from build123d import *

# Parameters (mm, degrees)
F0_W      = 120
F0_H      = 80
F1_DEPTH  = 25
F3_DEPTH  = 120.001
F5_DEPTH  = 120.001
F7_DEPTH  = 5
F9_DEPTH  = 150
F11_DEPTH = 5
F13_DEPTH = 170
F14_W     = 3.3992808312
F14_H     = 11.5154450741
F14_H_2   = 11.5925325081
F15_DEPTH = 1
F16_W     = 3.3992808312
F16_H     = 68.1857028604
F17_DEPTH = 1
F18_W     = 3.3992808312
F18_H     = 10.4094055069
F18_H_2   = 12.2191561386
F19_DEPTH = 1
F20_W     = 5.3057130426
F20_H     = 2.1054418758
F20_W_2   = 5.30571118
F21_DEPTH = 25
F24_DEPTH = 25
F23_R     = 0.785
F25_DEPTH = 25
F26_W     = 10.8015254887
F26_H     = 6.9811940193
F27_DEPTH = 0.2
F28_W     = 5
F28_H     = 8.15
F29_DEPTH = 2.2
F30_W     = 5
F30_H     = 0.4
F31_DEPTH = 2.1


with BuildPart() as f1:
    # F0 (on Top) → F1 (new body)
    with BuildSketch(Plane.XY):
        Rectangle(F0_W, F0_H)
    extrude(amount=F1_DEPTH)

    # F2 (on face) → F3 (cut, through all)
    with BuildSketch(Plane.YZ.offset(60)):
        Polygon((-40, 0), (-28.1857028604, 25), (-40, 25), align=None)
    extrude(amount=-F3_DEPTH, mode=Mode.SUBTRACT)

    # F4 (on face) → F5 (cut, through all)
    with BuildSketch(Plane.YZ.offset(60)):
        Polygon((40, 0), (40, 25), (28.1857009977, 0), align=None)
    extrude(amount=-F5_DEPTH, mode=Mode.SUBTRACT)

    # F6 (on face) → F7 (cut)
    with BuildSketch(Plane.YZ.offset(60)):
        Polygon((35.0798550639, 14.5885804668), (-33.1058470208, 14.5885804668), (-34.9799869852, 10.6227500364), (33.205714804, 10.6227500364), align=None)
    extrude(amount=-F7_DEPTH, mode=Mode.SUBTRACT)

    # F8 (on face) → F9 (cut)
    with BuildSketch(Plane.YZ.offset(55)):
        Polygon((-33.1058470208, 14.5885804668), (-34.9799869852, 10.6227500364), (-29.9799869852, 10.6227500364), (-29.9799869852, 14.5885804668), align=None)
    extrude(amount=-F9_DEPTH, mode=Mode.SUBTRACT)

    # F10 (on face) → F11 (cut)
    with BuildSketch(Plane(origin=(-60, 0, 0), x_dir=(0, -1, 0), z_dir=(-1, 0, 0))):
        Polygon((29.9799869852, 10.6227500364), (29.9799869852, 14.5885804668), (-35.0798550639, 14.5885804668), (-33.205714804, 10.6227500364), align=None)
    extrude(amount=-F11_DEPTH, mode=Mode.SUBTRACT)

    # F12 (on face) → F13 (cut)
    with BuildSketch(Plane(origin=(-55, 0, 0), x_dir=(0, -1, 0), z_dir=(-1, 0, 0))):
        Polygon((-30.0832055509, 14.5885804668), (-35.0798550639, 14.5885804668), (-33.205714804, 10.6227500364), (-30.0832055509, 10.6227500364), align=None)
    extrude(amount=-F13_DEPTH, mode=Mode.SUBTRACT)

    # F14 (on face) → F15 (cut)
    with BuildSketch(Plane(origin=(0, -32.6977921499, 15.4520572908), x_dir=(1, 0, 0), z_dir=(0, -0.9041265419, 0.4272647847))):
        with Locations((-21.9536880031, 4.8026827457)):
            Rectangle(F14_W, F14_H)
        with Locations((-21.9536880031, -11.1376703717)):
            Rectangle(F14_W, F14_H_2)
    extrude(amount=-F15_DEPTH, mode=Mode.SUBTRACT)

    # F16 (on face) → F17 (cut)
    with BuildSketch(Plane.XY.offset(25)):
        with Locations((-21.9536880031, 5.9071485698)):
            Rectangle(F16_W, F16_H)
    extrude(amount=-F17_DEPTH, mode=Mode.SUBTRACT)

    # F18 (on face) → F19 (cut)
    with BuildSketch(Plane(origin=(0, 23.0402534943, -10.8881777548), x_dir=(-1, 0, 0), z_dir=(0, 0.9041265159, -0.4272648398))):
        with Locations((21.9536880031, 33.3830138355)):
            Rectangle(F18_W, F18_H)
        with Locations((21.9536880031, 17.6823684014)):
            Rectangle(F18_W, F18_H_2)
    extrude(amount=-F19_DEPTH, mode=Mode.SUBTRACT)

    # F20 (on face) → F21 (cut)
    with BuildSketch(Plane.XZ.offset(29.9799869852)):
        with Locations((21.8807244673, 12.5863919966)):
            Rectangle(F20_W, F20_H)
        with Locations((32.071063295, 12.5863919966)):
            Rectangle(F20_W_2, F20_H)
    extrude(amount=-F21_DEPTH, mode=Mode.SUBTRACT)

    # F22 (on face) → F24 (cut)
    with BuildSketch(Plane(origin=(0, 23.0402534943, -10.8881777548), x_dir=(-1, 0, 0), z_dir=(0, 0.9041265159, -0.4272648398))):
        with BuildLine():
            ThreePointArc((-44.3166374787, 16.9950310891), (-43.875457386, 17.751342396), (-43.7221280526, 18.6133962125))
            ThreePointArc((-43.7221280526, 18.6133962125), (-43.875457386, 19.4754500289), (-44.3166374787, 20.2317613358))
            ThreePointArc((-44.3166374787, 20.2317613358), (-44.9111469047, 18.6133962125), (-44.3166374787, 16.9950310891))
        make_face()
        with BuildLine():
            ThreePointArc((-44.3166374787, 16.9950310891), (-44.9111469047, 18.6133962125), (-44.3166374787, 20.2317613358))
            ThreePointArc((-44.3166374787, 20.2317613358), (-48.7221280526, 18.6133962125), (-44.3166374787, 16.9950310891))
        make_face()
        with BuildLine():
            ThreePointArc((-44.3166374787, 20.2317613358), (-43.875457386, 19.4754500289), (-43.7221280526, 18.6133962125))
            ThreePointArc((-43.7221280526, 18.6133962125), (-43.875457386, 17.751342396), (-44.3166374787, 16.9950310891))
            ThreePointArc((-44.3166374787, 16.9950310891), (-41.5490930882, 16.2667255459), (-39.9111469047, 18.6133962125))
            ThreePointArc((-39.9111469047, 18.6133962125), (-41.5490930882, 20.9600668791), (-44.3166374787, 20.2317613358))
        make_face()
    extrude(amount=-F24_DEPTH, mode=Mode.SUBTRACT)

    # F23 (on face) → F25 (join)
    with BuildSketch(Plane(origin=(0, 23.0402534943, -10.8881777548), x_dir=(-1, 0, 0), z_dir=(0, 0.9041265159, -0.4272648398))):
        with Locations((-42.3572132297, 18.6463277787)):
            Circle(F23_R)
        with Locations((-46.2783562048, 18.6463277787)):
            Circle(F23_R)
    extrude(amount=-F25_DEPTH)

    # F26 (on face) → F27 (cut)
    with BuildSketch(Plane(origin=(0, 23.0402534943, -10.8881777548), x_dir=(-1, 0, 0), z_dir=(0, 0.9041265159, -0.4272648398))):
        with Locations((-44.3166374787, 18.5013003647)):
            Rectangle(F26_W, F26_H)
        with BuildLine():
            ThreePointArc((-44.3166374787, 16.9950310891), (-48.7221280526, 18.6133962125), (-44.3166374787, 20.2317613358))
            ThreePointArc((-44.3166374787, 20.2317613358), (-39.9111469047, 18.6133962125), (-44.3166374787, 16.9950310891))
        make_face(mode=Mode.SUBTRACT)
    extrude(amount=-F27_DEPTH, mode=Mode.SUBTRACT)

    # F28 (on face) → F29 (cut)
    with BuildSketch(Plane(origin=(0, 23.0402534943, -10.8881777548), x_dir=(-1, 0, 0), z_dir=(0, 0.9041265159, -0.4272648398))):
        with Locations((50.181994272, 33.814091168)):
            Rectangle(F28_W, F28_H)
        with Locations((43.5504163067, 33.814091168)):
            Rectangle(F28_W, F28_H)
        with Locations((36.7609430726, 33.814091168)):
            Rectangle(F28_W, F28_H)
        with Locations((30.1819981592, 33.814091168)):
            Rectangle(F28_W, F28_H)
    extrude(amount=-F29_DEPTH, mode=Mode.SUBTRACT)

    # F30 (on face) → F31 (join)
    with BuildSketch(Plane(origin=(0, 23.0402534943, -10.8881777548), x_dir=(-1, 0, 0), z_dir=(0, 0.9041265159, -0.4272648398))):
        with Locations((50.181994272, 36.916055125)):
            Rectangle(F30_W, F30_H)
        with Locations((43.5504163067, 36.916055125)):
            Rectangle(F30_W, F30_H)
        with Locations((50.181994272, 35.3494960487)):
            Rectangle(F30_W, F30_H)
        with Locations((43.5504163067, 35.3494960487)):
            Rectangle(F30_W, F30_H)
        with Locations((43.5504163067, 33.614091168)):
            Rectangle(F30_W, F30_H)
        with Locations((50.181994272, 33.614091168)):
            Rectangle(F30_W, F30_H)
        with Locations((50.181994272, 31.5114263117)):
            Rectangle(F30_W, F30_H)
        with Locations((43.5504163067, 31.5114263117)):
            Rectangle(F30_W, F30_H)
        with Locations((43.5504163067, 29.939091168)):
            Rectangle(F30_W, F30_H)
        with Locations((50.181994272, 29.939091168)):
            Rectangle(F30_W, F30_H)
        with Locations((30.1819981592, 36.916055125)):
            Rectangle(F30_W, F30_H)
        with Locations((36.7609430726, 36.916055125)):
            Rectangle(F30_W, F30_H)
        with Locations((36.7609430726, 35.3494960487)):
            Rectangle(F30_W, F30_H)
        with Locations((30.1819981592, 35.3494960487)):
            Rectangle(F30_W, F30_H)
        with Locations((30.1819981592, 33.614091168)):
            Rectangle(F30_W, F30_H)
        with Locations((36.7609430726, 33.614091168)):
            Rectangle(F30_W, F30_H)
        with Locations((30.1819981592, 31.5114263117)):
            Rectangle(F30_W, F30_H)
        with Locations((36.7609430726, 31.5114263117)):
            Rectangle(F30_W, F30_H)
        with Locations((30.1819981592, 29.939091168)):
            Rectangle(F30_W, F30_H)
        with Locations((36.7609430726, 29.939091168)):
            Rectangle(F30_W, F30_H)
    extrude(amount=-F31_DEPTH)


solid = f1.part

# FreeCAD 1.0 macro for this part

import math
import FreeCAD as App
import Part
import Sketcher

V = App.Vector
Q = App.Units.Quantity


def add_polygon(sketch, points):
    """Adds a closed chain of lines whose ends are joined by coincident constraints."""
    first, n = sketch.GeometryCount, len(points)
    for a, b in zip(points, points[1:] + points[:1]):
        sketch.addGeometry(Part.LineSegment(App.Vector(*a, 0), App.Vector(*b, 0)), False)
    for i in range(n):
        sketch.addConstraint(Sketcher.Constraint("Coincident", first + i, 2, first + (i + 1) % n, 1))

doc = App.newDocument("Part")
body = doc.addObject("PartDesign::Body", "Body")

sketch1 = body.newObject("Sketcher::SketchObject", "Sketch")
sketch1.AttachmentSupport = (doc.getObject("XY_Plane"), [""])
sketch1.MapMode = "FlatFace"
add_polygon(sketch1, [(-60, 40), (-60, -40), (60, -40), (60, 40)])
sketch1.addConstraint(Sketcher.Constraint("Vertical", 0))
sketch1.addConstraint(Sketcher.Constraint("Horizontal", 1))
sketch1.addConstraint(Sketcher.Constraint("Vertical", 2))
sketch1.addConstraint(Sketcher.Constraint("Horizontal", 3))
sketch1.addConstraint(Sketcher.Constraint("Symmetric", 0, 2, 2, 2, -1, 1))
sketch1.addConstraint(Sketcher.Constraint("DistanceX", 1, 1, 1, 2, Q("120 mm")))
sketch1.addConstraint(Sketcher.Constraint("DistanceY", 0, 2, 0, 1, Q("80 mm")))
pad1 = body.newObject("PartDesign::Pad", "Pad")
pad1.Profile = sketch1
pad1.Length = 25

sketch2 = body.newObject("Sketcher::SketchObject", "Sketch001")
sketch2.AttachmentSupport = (doc.getObject("YZ_Plane"), [""])
sketch2.MapMode = "FlatFace"
sketch2.AttachmentOffset = App.Placement(V(0, 0, 60), App.Rotation())
add_polygon(sketch2, [(-40, 0), (-28, 25), (-40, 25)])
sketch2.addConstraint(Sketcher.Constraint("Horizontal", 1))
sketch2.addConstraint(Sketcher.Constraint("Vertical", 2))
sketch2.addConstraint(Sketcher.Constraint("PointOnObject", 2, 2, -1))
sketch2.addConstraint(Sketcher.Constraint("DistanceY", 2, 2, 2, 1, Q("25 mm")))
sketch2.addConstraint(Sketcher.Constraint("DistanceX", 1, 2, -1, 1, Q("40 mm")))
sketch2.addConstraint(Sketcher.Constraint("DistanceX", 1, 2, 1, 1, Q("11.814297 mm")))
pocket1 = body.newObject("PartDesign::Pocket", "Pocket")
pocket1.Profile = sketch2
pocket1.Type = "ThroughAll"

sketch3 = body.newObject("Sketcher::SketchObject", "Sketch002")
sketch3.AttachmentSupport = (doc.getObject("YZ_Plane"), [""])
sketch3.MapMode = "FlatFace"
sketch3.AttachmentOffset = App.Placement(V(0, 0, 60), App.Rotation())
add_polygon(sketch3, [(40, 0), (40, 25), (28, 0)])
sketch3.addConstraint(Sketcher.Constraint("Vertical", 0))
sketch3.addConstraint(Sketcher.Constraint("Horizontal", 2))
sketch3.addConstraint(Sketcher.Constraint("PointOnObject", 1, 2, -1))
sketch3.addConstraint(Sketcher.Constraint("DistanceY", 0, 1, 0, 2, Q("25 mm")))
sketch3.addConstraint(Sketcher.Constraint("DistanceX", -1, 1, 0, 2, Q("40 mm")))
sketch3.addConstraint(Sketcher.Constraint("DistanceX", 2, 1, 2, 2, Q("11.814299 mm")))
pocket2 = body.newObject("PartDesign::Pocket", "Pocket001")
pocket2.Profile = sketch3
pocket2.Type = "ThroughAll"

sketch4 = body.newObject("Sketcher::SketchObject", "Sketch003")
sketch4.AttachmentSupport = (doc.getObject("YZ_Plane"), [""])
sketch4.MapMode = "FlatFace"
sketch4.AttachmentOffset = App.Placement(V(0, 0, 60), App.Rotation())
add_polygon(sketch4, [(35.1, 14.6), (-33.1, 14.6), (-35, 10.6), (33.2, 10.6)])
sketch4.addConstraint(Sketcher.Constraint("Horizontal", 0))
sketch4.addConstraint(Sketcher.Constraint("Horizontal", 2))
sketch4.addConstraint(Sketcher.Constraint("Parallel", 1, 3))
sketch4.addConstraint(Sketcher.Constraint("DistanceX", 2, 1, 2, 2, Q("68.185702 mm")))
sketch4.addConstraint(Sketcher.Constraint("DistanceY", -1, 1, 0, 2, Q("14.58858 mm")))
sketch4.addConstraint(Sketcher.Constraint("DistanceY", -1, 1, 1, 2, Q("10.62275 mm")))
sketch4.addConstraint(Sketcher.Constraint("DistanceX", 1, 2, 0, 2, Q("1.87414 mm")))
sketch4.addConstraint(Sketcher.Constraint("DistanceX", 0, 2, -1, 1, Q("33.105847 mm")))
pocket3 = body.newObject("PartDesign::Pocket", "Pocket002")
pocket3.Profile = sketch4
pocket3.Length = 5

sketch5 = body.newObject("Sketcher::SketchObject", "Sketch004")
sketch5.AttachmentSupport = (doc.getObject("YZ_Plane"), [""])
sketch5.MapMode = "FlatFace"
sketch5.AttachmentOffset = App.Placement(V(0, 0, 55), App.Rotation())
add_polygon(sketch5, [(-33.1, 14.6), (-35, 10.6), (-30, 10.6), (-30, 14.6)])
sketch5.addConstraint(Sketcher.Constraint("Horizontal", 1))
sketch5.addConstraint(Sketcher.Constraint("Vertical", 2))
sketch5.addConstraint(Sketcher.Constraint("Horizontal", 3))
sketch5.addConstraint(Sketcher.Constraint("DistanceX", 1, 1, 1, 2, Q("5 mm")))
sketch5.addConstraint(Sketcher.Constraint("DistanceX", 3, 2, 3, 1, Q("3.12586 mm")))
sketch5.addConstraint(Sketcher.Constraint("DistanceY", 2, 1, 2, 2, Q("3.96583 mm")))
sketch5.addConstraint(Sketcher.Constraint("DistanceY", -1, 1, 0, 2, Q("10.62275 mm")))
sketch5.addConstraint(Sketcher.Constraint("DistanceX", 0, 2, -1, 1, Q("34.979987 mm")))
pocket4 = body.newObject("PartDesign::Pocket", "Pocket003")
pocket4.Profile = sketch5
pocket4.Length = 150

sketch6 = body.newObject("Sketcher::SketchObject", "Sketch005")
sketch6.AttachmentSupport = (doc.getObject("YZ_Plane"), [""])
sketch6.MapMode = "FlatFace"
sketch6.AttachmentOffset = App.Placement(V(0, 0, -60), App.Rotation())
add_polygon(sketch6, [(-30, 10.6), (-30, 14.6), (35.1, 14.6), (33.2, 10.6)])
sketch6.addConstraint(Sketcher.Constraint("Vertical", 0))
sketch6.addConstraint(Sketcher.Constraint("Horizontal", 1))
sketch6.addConstraint(Sketcher.Constraint("Horizontal", 3))
sketch6.addConstraint(Sketcher.Constraint("DistanceX", 3, 2, 3, 1, Q("63.185702 mm")))
sketch6.addConstraint(Sketcher.Constraint("DistanceY", 0, 1, 0, 2, Q("3.96583 mm")))
sketch6.addConstraint(Sketcher.Constraint("DistanceX", 1, 1, 1, 2, Q("65.059842 mm")))
sketch6.addConstraint(Sketcher.Constraint("DistanceY", -1, 1, 0, 2, Q("14.58858 mm")))
sketch6.addConstraint(Sketcher.Constraint("DistanceX", 0, 2, -1, 1, Q("29.979987 mm")))
pocket5 = body.newObject("PartDesign::Pocket", "Pocket004")
pocket5.Profile = sketch6
pocket5.Length = 5
pocket5.Reversed = True

sketch7 = body.newObject("Sketcher::SketchObject", "Sketch006")
sketch7.AttachmentSupport = (doc.getObject("YZ_Plane"), [""])
sketch7.MapMode = "FlatFace"
sketch7.AttachmentOffset = App.Placement(V(0, 0, -55), App.Rotation())
add_polygon(sketch7, [(30.1, 14.6), (35.1, 14.6), (33.2, 10.6), (30.1, 10.6)])
sketch7.addConstraint(Sketcher.Constraint("Horizontal", 0))
sketch7.addConstraint(Sketcher.Constraint("Horizontal", 2))
sketch7.addConstraint(Sketcher.Constraint("Vertical", 3))
sketch7.addConstraint(Sketcher.Constraint("DistanceX", 0, 1, 0, 2, Q("4.99665 mm")))
sketch7.addConstraint(Sketcher.Constraint("DistanceX", 2, 2, 2, 1, Q("3.122509 mm")))
sketch7.addConstraint(Sketcher.Constraint("DistanceY", 3, 1, 3, 2, Q("3.96583 mm")))
sketch7.addConstraint(Sketcher.Constraint("DistanceY", -1, 1, 0, 2, Q("14.58858 mm")))
sketch7.addConstraint(Sketcher.Constraint("DistanceX", -1, 1, 0, 2, Q("35.079855 mm")))
pocket6 = body.newObject("PartDesign::Pocket", "Pocket005")
pocket6.Profile = sketch7
pocket6.Length = 170
pocket6.Reversed = True

sketch8 = body.newObject("Sketcher::SketchObject", "Sketch007")
sketch8.Placement = App.Placement(V(0, -32.697792, 15.452057), App.Rotation(V(1, 0, 0), V(0, 0.427264785, 0.904126542), V(0, -0.904126542, 0.427264785), "ZXY"))
add_polygon(sketch8, [(-23.7, 10.6), (-23.7, -1), (-20.3, -1), (-20.3, 10.6)])
add_polygon(sketch8, [(-23.7, -5.3), (-23.7, -16.9), (-20.3, -16.9), (-20.3, -5.3)])
sketch8.addConstraint(Sketcher.Constraint("Vertical", 0))
sketch8.addConstraint(Sketcher.Constraint("Horizontal", 1))
sketch8.addConstraint(Sketcher.Constraint("Vertical", 2))
sketch8.addConstraint(Sketcher.Constraint("Horizontal", 3))
sketch8.addConstraint(Sketcher.Constraint("Vertical", 4))
sketch8.addConstraint(Sketcher.Constraint("Horizontal", 5))
sketch8.addConstraint(Sketcher.Constraint("Vertical", 6))
sketch8.addConstraint(Sketcher.Constraint("Horizontal", 7))
sketch8.addConstraint(Sketcher.Constraint("Vertical", 3, 2, 4, 2))
sketch8.addConstraint(Sketcher.Constraint("Vertical", 2, 2, 5, 2))
sketch8.addConstraint(Sketcher.Constraint("DistanceX", 1, 1, 1, 2, Q("3.399281 mm")))
sketch8.addConstraint(Sketcher.Constraint("DistanceY", 0, 2, 0, 1, Q("11.515445 mm")))
sketch8.addConstraint(Sketcher.Constraint("DistanceY", 4, 2, 4, 1, Q("11.592533 mm")))
sketch8.addConstraint(Sketcher.Constraint("DistanceX", 0, 2, -1, 1, Q("23.653328 mm")))
sketch8.addConstraint(Sketcher.Constraint("DistanceY", 0, 2, -1, 1, Q("0.95504 mm")))
sketch8.addConstraint(Sketcher.Constraint("DistanceY", 4, 2, 3, 2, Q("27.494342 mm")))
pocket7 = body.newObject("PartDesign::Pocket", "Pocket006")
pocket7.Profile = sketch8
pocket7.Length = 1

sketch9 = body.newObject("Sketcher::SketchObject", "Sketch008")
sketch9.AttachmentSupport = (doc.getObject("XY_Plane"), [""])
sketch9.MapMode = "FlatFace"
sketch9.AttachmentOffset = App.Placement(V(0, 0, 25), App.Rotation())
add_polygon(sketch9, [(-23.7, 40), (-23.7, -28.2), (-20.3, -28.2), (-20.3, 40)])
sketch9.addConstraint(Sketcher.Constraint("Vertical", 0))
sketch9.addConstraint(Sketcher.Constraint("Horizontal", 1))
sketch9.addConstraint(Sketcher.Constraint("Vertical", 2))
sketch9.addConstraint(Sketcher.Constraint("Horizontal", 3))
sketch9.addConstraint(Sketcher.Constraint("DistanceY", -1, 1, 2, 2, Q("40 mm")))
sketch9.addConstraint(Sketcher.Constraint("DistanceX", 1, 1, 1, 2, Q("3.399281 mm")))
sketch9.addConstraint(Sketcher.Constraint("DistanceY", 0, 2, 0, 1, Q("68.185703 mm")))
sketch9.addConstraint(Sketcher.Constraint("DistanceX", 0, 2, -1, 1, Q("23.653328 mm")))
pocket8 = body.newObject("PartDesign::Pocket", "Pocket007")
pocket8.Profile = sketch9
pocket8.Length = 1

sketch10 = body.newObject("Sketcher::SketchObject", "Sketch009")
sketch10.Placement = App.Placement(V(0, 23.040253, -10.888178), App.Rotation(V(-1, 0, 0), V(0, 0.42726484, 0.904126516), V(0, 0.904126516, -0.42726484), "ZXY"))
add_polygon(sketch10, [(20.3, 38.6), (20.3, 28.2), (23.7, 28.2), (23.7, 38.6)])
add_polygon(sketch10, [(20.3, 23.8), (20.3, 11.6), (23.7, 11.6), (23.7, 23.8)])
sketch10.addConstraint(Sketcher.Constraint("Vertical", 0))
sketch10.addConstraint(Sketcher.Constraint("Horizontal", 1))
sketch10.addConstraint(Sketcher.Constraint("Vertical", 2))
sketch10.addConstraint(Sketcher.Constraint("Horizontal", 3))
sketch10.addConstraint(Sketcher.Constraint("Vertical", 4))
sketch10.addConstraint(Sketcher.Constraint("Horizontal", 5))
sketch10.addConstraint(Sketcher.Constraint("Vertical", 6))
sketch10.addConstraint(Sketcher.Constraint("Horizontal", 7))
sketch10.addConstraint(Sketcher.Constraint("Vertical", 3, 2, 4, 2))
sketch10.addConstraint(Sketcher.Constraint("Vertical", 2, 2, 5, 2))
sketch10.addConstraint(Sketcher.Constraint("DistanceX", 1, 1, 1, 2, Q("3.399281 mm")))
sketch10.addConstraint(Sketcher.Constraint("DistanceY", 0, 2, 0, 1, Q("10.409406 mm")))
sketch10.addConstraint(Sketcher.Constraint("DistanceY", 4, 2, 4, 1, Q("12.219156 mm")))
sketch10.addConstraint(Sketcher.Constraint("DistanceY", -1, 1, 0, 2, Q("28.178311 mm")))
sketch10.addConstraint(Sketcher.Constraint("DistanceX", -1, 1, 1, 2, Q("23.653328 mm")))
sketch10.addConstraint(Sketcher.Constraint("DistanceY", -1, 1, 4, 2, Q("11.57279 mm")))
pocket9 = body.newObject("PartDesign::Pocket", "Pocket008")
pocket9.Profile = sketch10
pocket9.Length = 1

sketch11 = body.newObject("Sketcher::SketchObject", "Sketch010")
sketch11.AttachmentSupport = (doc.getObject("XZ_Plane"), [""])
sketch11.MapMode = "FlatFace"
sketch11.AttachmentOffset = App.Placement(V(0, 0, 29.979987), App.Rotation())
add_polygon(sketch11, [(19.2, 13.6), (19.2, 11.5), (24.5, 11.5), (24.5, 13.6)])
add_polygon(sketch11, [(29.4, 13.6), (29.4, 11.5), (34.7, 11.5), (34.7, 13.6)])
sketch11.addConstraint(Sketcher.Constraint("Vertical", 0))
sketch11.addConstraint(Sketcher.Constraint("Horizontal", 1))
sketch11.addConstraint(Sketcher.Constraint("Vertical", 2))
sketch11.addConstraint(Sketcher.Constraint("Horizontal", 3))
sketch11.addConstraint(Sketcher.Constraint("Vertical", 4))
sketch11.addConstraint(Sketcher.Constraint("Horizontal", 5))
sketch11.addConstraint(Sketcher.Constraint("Vertical", 6))
sketch11.addConstraint(Sketcher.Constraint("Horizontal", 7))
sketch11.addConstraint(Sketcher.Constraint("Horizontal", 1, 2, 4, 2))
sketch11.addConstraint(Sketcher.Constraint("Horizontal", 3, 2, 6, 2))
sketch11.addConstraint(Sketcher.Constraint("Equal", 3, 5))
sketch11.addConstraint(Sketcher.Constraint("DistanceX", 5, 1, 5, 2, Q("5.305711 mm")))
sketch11.addConstraint(Sketcher.Constraint("DistanceY", 0, 2, 0, 1, Q("2.105442 mm")))
sketch11.addConstraint(Sketcher.Constraint("DistanceY", -1, 1, 0, 2, Q("11.533671 mm")))
sketch11.addConstraint(Sketcher.Constraint("DistanceX", -1, 1, 1, 2, Q("24.533581 mm")))
sketch11.addConstraint(Sketcher.Constraint("DistanceX", -1, 1, 5, 2, Q("34.723919 mm")))
pocket10 = body.newObject("PartDesign::Pocket", "Pocket009")
pocket10.Profile = sketch11
pocket10.Length = 25

sketch12 = body.newObject("Sketcher::SketchObject", "Sketch011")
sketch12.Placement = App.Placement(V(0, 23.040253, -10.888178), App.Rotation(V(-1, 0, 0), V(0, 0.42726484, 0.904126516), V(0, 0.904126516, -0.42726484), "ZXY"))
sketch12.addGeometry(Part.ArcOfCircle(Part.Circle(V(-46.2, 18.6, 0), V(0, 0, 1), 2.5), math.radians(40), math.radians(320)), False)
sketch12.addGeometry(Part.ArcOfCircle(Part.Circle(V(-42.4, 18.6, 0), V(0, 0, 1), 2.5), math.radians(-140), math.radians(0)), False)
sketch12.addGeometry(Part.ArcOfCircle(Part.Circle(V(-42.4, 18.6, 0), V(0, 0, 1), 2.5), math.radians(0), math.radians(140)), False)
sketch12.addConstraint(Sketcher.Constraint("Coincident", 0, 2, 1, 1))
sketch12.addConstraint(Sketcher.Constraint("Tangent", 1, 2, 2, 1))
sketch12.addConstraint(Sketcher.Constraint("Coincident", 2, 2, 0, 1))
sketch12.addConstraint(Sketcher.Constraint("Equal", 0, 1))
sketch12.addConstraint(Sketcher.Constraint("Equal", 1, 2))
sketch12.addConstraint(Sketcher.Constraint("Horizontal", 0, 3, 1, 3))
sketch12.addConstraint(Sketcher.Constraint("Horizontal", 2, 3, 1, 2))
sketch12.addConstraint(Sketcher.Constraint("Radius", 0, Q("2.5 mm")))
sketch12.addConstraint(Sketcher.Constraint("DistanceX", 0, 3, -1, 1, Q("46.222128 mm")))
sketch12.addConstraint(Sketcher.Constraint("DistanceY", -1, 1, 0, 2, Q("16.995031 mm")))
sketch12.addConstraint(Sketcher.Constraint("DistanceY", -1, 1, 2, 2, Q("20.231761 mm")))
pocket11 = body.newObject("PartDesign::Pocket", "Pocket010")
pocket11.Profile = sketch12
pocket11.Length = 25

sketch13 = body.newObject("Sketcher::SketchObject", "Sketch012")
sketch13.Placement = App.Placement(V(0, 23.040253, -10.888178), App.Rotation(V(-1, 0, 0), V(0, 0.42726484, 0.904126516), V(0, 0.904126516, -0.42726484), "ZXY"))
sketch13.addGeometry(Part.Circle(V(-42.4, 18.6, 0), V(0, 0, 1), 0.8), False)
sketch13.addGeometry(Part.Circle(V(-46.3, 18.6, 0), V(0, 0, 1), 0.8), False)
sketch13.addConstraint(Sketcher.Constraint("Equal", 0, 1))
sketch13.addConstraint(Sketcher.Constraint("Horizontal", 0, 3, 1, 3))
sketch13.addConstraint(Sketcher.Constraint("Diameter", 0, Q("1.57 mm")))
sketch13.addConstraint(Sketcher.Constraint("DistanceX", 0, 3, -1, 1, Q("42.357213 mm")))
sketch13.addConstraint(Sketcher.Constraint("DistanceY", -1, 1, 0, 3, Q("18.646328 mm")))
sketch13.addConstraint(Sketcher.Constraint("DistanceX", 1, 3, -1, 1, Q("46.278356 mm")))
pad2 = body.newObject("PartDesign::Pad", "Pad001")
pad2.Profile = sketch13
pad2.Length = 25
pad2.Reversed = True

sketch14 = body.newObject("Sketcher::SketchObject", "Sketch013")
sketch14.Placement = App.Placement(V(0, 23.040253, -10.888178), App.Rotation(V(-1, 0, 0), V(0, 0.42726484, 0.904126516), V(0, 0.904126516, -0.42726484), "ZXY"))
add_polygon(sketch14, [(-49.7, 22), (-49.7, 15), (-38.9, 15), (-38.9, 22)])
sketch14.addGeometry(Part.ArcOfCircle(Part.Circle(V(-42.4, 18.6, 0), V(0, 0, 1), 2.5), math.radians(-140), math.radians(140)), False)
sketch14.addGeometry(Part.ArcOfCircle(Part.Circle(V(-46.2, 18.6, 0), V(0, 0, 1), 2.5), math.radians(40), math.radians(320)), False)
sketch14.addConstraint(Sketcher.Constraint("Coincident", 4, 1, 5, 2))
sketch14.addConstraint(Sketcher.Constraint("Coincident", 5, 1, 4, 2))
sketch14.addConstraint(Sketcher.Constraint("Vertical", 0))
sketch14.addConstraint(Sketcher.Constraint("Horizontal", 1))
sketch14.addConstraint(Sketcher.Constraint("Vertical", 2))
sketch14.addConstraint(Sketcher.Constraint("Horizontal", 3))
sketch14.addConstraint(Sketcher.Constraint("Equal", 4, 5))
sketch14.addConstraint(Sketcher.Constraint("Horizontal", 4, 3, 5, 3))
sketch14.addConstraint(Sketcher.Constraint("Radius", 4, Q("2.5 mm")))
sketch14.addConstraint(Sketcher.Constraint("DistanceX", 0, 2, -1, 1, Q("49.7174 mm")))
sketch14.addConstraint(Sketcher.Constraint("DistanceY", 4, 3, 2, 2, Q("3.378501 mm")))
sketch14.addConstraint(Sketcher.Constraint("DistanceX", 1, 1, 1, 2, Q("10.801525 mm")))
sketch14.addConstraint(Sketcher.Constraint("DistanceY", 0, 2, 0, 1, Q("6.981194 mm")))
sketch14.addConstraint(Sketcher.Constraint("DistanceX", 5, 3, -1, 1, Q("46.222128 mm")))
sketch14.addConstraint(Sketcher.Constraint("DistanceY", -1, 1, 4, 1, Q("16.995031 mm")))
sketch14.addConstraint(Sketcher.Constraint("DistanceY", -1, 1, 5, 1, Q("20.231761 mm")))
pocket12 = body.newObject("PartDesign::Pocket", "Pocket011")
pocket12.Profile = sketch14
pocket12.Length = 0.2

sketch15 = body.newObject("Sketcher::SketchObject", "Sketch014")
sketch15.Placement = App.Placement(V(0, 23.040253, -10.888178), App.Rotation(V(-1, 0, 0), V(0, 0.42726484, 0.904126516), V(0, 0.904126516, -0.42726484), "ZXY"))
add_polygon(sketch15, [(48, 38), (48, 30), (53, 30), (53, 38)])
add_polygon(sketch15, [(41, 38), (41, 30), (46, 30), (46, 38)])
add_polygon(sketch15, [(34, 38), (34, 30), (39, 30), (39, 38)])
add_polygon(sketch15, [(28, 38), (28, 30), (33, 30), (33, 38)])
sketch15.addConstraint(Sketcher.Constraint("Vertical", 0))
sketch15.addConstraint(Sketcher.Constraint("Horizontal", 1))
sketch15.addConstraint(Sketcher.Constraint("Vertical", 2))
sketch15.addConstraint(Sketcher.Constraint("Horizontal", 3))
sketch15.addConstraint(Sketcher.Constraint("Vertical", 4))
sketch15.addConstraint(Sketcher.Constraint("Horizontal", 5))
sketch15.addConstraint(Sketcher.Constraint("Vertical", 6))
sketch15.addConstraint(Sketcher.Constraint("Horizontal", 7))
sketch15.addConstraint(Sketcher.Constraint("Vertical", 8))
sketch15.addConstraint(Sketcher.Constraint("Horizontal", 9))
sketch15.addConstraint(Sketcher.Constraint("Vertical", 10))
sketch15.addConstraint(Sketcher.Constraint("Horizontal", 11))
sketch15.addConstraint(Sketcher.Constraint("Vertical", 12))
sketch15.addConstraint(Sketcher.Constraint("Horizontal", 13))
sketch15.addConstraint(Sketcher.Constraint("Vertical", 14))
sketch15.addConstraint(Sketcher.Constraint("Horizontal", 15))
sketch15.addConstraint(Sketcher.Constraint("Horizontal", 1, 2, 4, 2))
sketch15.addConstraint(Sketcher.Constraint("Horizontal", 3, 2, 6, 2))
sketch15.addConstraint(Sketcher.Constraint("Horizontal", 5, 2, 8, 2))
sketch15.addConstraint(Sketcher.Constraint("Horizontal", 7, 2, 10, 2))
sketch15.addConstraint(Sketcher.Constraint("Horizontal", 9, 2, 12, 2))
sketch15.addConstraint(Sketcher.Constraint("Horizontal", 11, 2, 14, 2))
sketch15.addConstraint(Sketcher.Constraint("Equal", 3, 5))
sketch15.addConstraint(Sketcher.Constraint("Equal", 7, 9))
sketch15.addConstraint(Sketcher.Constraint("Equal", 11, 13))
sketch15.addConstraint(Sketcher.Constraint("DistanceX", 1, 1, 1, 2, Q("5 mm")))
sketch15.addConstraint(Sketcher.Constraint("DistanceY", 0, 2, 0, 1, Q("8.15 mm")))
sketch15.addConstraint(Sketcher.Constraint("DistanceX", -1, 1, 12, 2, Q("27.681998 mm")))
sketch15.addConstraint(Sketcher.Constraint("DistanceY", -1, 1, 0, 2, Q("29.739091 mm")))
sketch15.addConstraint(Sketcher.Constraint("DistanceX", 8, 2, 0, 2, Q("13.421051 mm")))
sketch15.addConstraint(Sketcher.Constraint("DistanceX", 12, 2, 4, 2, Q("13.368418 mm")))
sketch15.addConstraint(Sketcher.Constraint("DistanceX", -1, 1, 0, 2, Q("47.681994 mm")))
pocket13 = body.newObject("PartDesign::Pocket", "Pocket012")
pocket13.Profile = sketch15
pocket13.Length = 2.2

sketch16 = body.newObject("Sketcher::SketchObject", "Sketch015")
sketch16.Placement = App.Placement(V(0, 23.040253, -10.888178), App.Rotation(V(-1, 0, 0), V(0, 0.42726484, 0.904126516), V(0, 0.904126516, -0.42726484), "ZXY"))
add_polygon(sketch16, [(47.68, 37.12), (47.68, 36.72), (52.68, 36.72), (52.68, 37.12)])
add_polygon(sketch16, [(41.05, 37.12), (41.05, 36.72), (46.05, 36.72), (46.05, 37.12)])
add_polygon(sketch16, [(47.68, 35.55), (47.68, 35.15), (52.68, 35.15), (52.68, 35.55)])
add_polygon(sketch16, [(41.05, 35.55), (41.05, 35.15), (46.05, 35.15), (46.05, 35.55)])
add_polygon(sketch16, [(41.05, 33.81), (41.05, 33.41), (46.05, 33.41), (46.05, 33.81)])
add_polygon(sketch16, [(47.68, 33.81), (47.68, 33.41), (52.68, 33.41), (52.68, 33.81)])
add_polygon(sketch16, [(47.68, 31.71), (47.68, 31.31), (52.68, 31.31), (52.68, 31.71)])
add_polygon(sketch16, [(41.05, 31.71), (41.05, 31.31), (46.05, 31.31), (46.05, 31.71)])
add_polygon(sketch16, [(41.05, 30.14), (41.05, 29.74), (46.05, 29.74), (46.05, 30.14)])
add_polygon(sketch16, [(47.68, 30.14), (47.68, 29.74), (52.68, 29.74), (52.68, 30.14)])
add_polygon(sketch16, [(27.68, 37.12), (27.68, 36.72), (32.68, 36.72), (32.68, 37.12)])
add_polygon(sketch16, [(34.26, 37.12), (34.26, 36.72), (39.26, 36.72), (39.26, 37.12)])
add_polygon(sketch16, [(34.26, 35.55), (34.26, 35.15), (39.26, 35.15), (39.26, 35.55)])
add_polygon(sketch16, [(27.68, 35.55), (27.68, 35.15), (32.68, 35.15), (32.68, 35.55)])
add_polygon(sketch16, [(27.68, 33.81), (27.68, 33.41), (32.68, 33.41), (32.68, 33.81)])
add_polygon(sketch16, [(34.26, 33.81), (34.26, 33.41), (39.26, 33.41), (39.26, 33.81)])
add_polygon(sketch16, [(27.68, 31.71), (27.68, 31.31), (32.68, 31.31), (32.68, 31.71)])
add_polygon(sketch16, [(34.26, 31.71), (34.26, 31.31), (39.26, 31.31), (39.26, 31.71)])
add_polygon(sketch16, [(27.68, 30.14), (27.68, 29.74), (32.68, 29.74), (32.68, 30.14)])
add_polygon(sketch16, [(34.26, 30.14), (34.26, 29.74), (39.26, 29.74), (39.26, 30.14)])
sketch16.addConstraint(Sketcher.Constraint("Vertical", 0))
sketch16.addConstraint(Sketcher.Constraint("Horizontal", 1))
sketch16.addConstraint(Sketcher.Constraint("Vertical", 2))
sketch16.addConstraint(Sketcher.Constraint("Horizontal", 3))
sketch16.addConstraint(Sketcher.Constraint("Vertical", 4))
sketch16.addConstraint(Sketcher.Constraint("Horizontal", 5))
sketch16.addConstraint(Sketcher.Constraint("Vertical", 6))
sketch16.addConstraint(Sketcher.Constraint("Horizontal", 7))
sketch16.addConstraint(Sketcher.Constraint("Vertical", 8))
sketch16.addConstraint(Sketcher.Constraint("Horizontal", 9))
sketch16.addConstraint(Sketcher.Constraint("Vertical", 10))
sketch16.addConstraint(Sketcher.Constraint("Horizontal", 11))
sketch16.addConstraint(Sketcher.Constraint("Vertical", 12))
sketch16.addConstraint(Sketcher.Constraint("Horizontal", 13))
sketch16.addConstraint(Sketcher.Constraint("Vertical", 14))
sketch16.addConstraint(Sketcher.Constraint("Horizontal", 15))
sketch16.addConstraint(Sketcher.Constraint("Vertical", 16))
sketch16.addConstraint(Sketcher.Constraint("Horizontal", 17))
sketch16.addConstraint(Sketcher.Constraint("Vertical", 18))
sketch16.addConstraint(Sketcher.Constraint("Horizontal", 19))
sketch16.addConstraint(Sketcher.Constraint("Vertical", 20))
sketch16.addConstraint(Sketcher.Constraint("Horizontal", 21))
sketch16.addConstraint(Sketcher.Constraint("Vertical", 22))
sketch16.addConstraint(Sketcher.Constraint("Horizontal", 23))
sketch16.addConstraint(Sketcher.Constraint("Vertical", 24))
sketch16.addConstraint(Sketcher.Constraint("Horizontal", 25))
sketch16.addConstraint(Sketcher.Constraint("Vertical", 26))
sketch16.addConstraint(Sketcher.Constraint("Horizontal", 27))
sketch16.addConstraint(Sketcher.Constraint("Vertical", 28))
sketch16.addConstraint(Sketcher.Constraint("Horizontal", 29))
sketch16.addConstraint(Sketcher.Constraint("Vertical", 30))
sketch16.addConstraint(Sketcher.Constraint("Horizontal", 31))
sketch16.addConstraint(Sketcher.Constraint("Vertical", 32))
sketch16.addConstraint(Sketcher.Constraint("Horizontal", 33))
sketch16.addConstraint(Sketcher.Constraint("Vertical", 34))
sketch16.addConstraint(Sketcher.Constraint("Horizontal", 35))
sketch16.addConstraint(Sketcher.Constraint("Vertical", 36))
sketch16.addConstraint(Sketcher.Constraint("Horizontal", 37))
sketch16.addConstraint(Sketcher.Constraint("Vertical", 38))
sketch16.addConstraint(Sketcher.Constraint("Horizontal", 39))
sketch16.addConstraint(Sketcher.Constraint("Vertical", 40))
sketch16.addConstraint(Sketcher.Constraint("Horizontal", 41))
sketch16.addConstraint(Sketcher.Constraint("Vertical", 42))
sketch16.addConstraint(Sketcher.Constraint("Horizontal", 43))
sketch16.addConstraint(Sketcher.Constraint("Vertical", 44))
sketch16.addConstraint(Sketcher.Constraint("Horizontal", 45))
sketch16.addConstraint(Sketcher.Constraint("Vertical", 46))
sketch16.addConstraint(Sketcher.Constraint("Horizontal", 47))
sketch16.addConstraint(Sketcher.Constraint("Vertical", 48))
sketch16.addConstraint(Sketcher.Constraint("Horizontal", 49))
sketch16.addConstraint(Sketcher.Constraint("Vertical", 50))
sketch16.addConstraint(Sketcher.Constraint("Horizontal", 51))
sketch16.addConstraint(Sketcher.Constraint("Vertical", 52))
sketch16.addConstraint(Sketcher.Constraint("Horizontal", 53))
sketch16.addConstraint(Sketcher.Constraint("Vertical", 54))
sketch16.addConstraint(Sketcher.Constraint("Horizontal", 55))
sketch16.addConstraint(Sketcher.Constraint("Vertical", 56))
sketch16.addConstraint(Sketcher.Constraint("Horizontal", 57))
sketch16.addConstraint(Sketcher.Constraint("Vertical", 58))
sketch16.addConstraint(Sketcher.Constraint("Horizontal", 59))
sketch16.addConstraint(Sketcher.Constraint("Vertical", 60))
sketch16.addConstraint(Sketcher.Constraint("Horizontal", 61))
sketch16.addConstraint(Sketcher.Constraint("Vertical", 62))
sketch16.addConstraint(Sketcher.Constraint("Horizontal", 63))
sketch16.addConstraint(Sketcher.Constraint("Vertical", 64))
sketch16.addConstraint(Sketcher.Constraint("Horizontal", 65))
sketch16.addConstraint(Sketcher.Constraint("Vertical", 66))
sketch16.addConstraint(Sketcher.Constraint("Horizontal", 67))
sketch16.addConstraint(Sketcher.Constraint("Vertical", 68))
sketch16.addConstraint(Sketcher.Constraint("Horizontal", 69))
sketch16.addConstraint(Sketcher.Constraint("Vertical", 70))
sketch16.addConstraint(Sketcher.Constraint("Horizontal", 71))
sketch16.addConstraint(Sketcher.Constraint("Vertical", 72))
sketch16.addConstraint(Sketcher.Constraint("Horizontal", 73))
sketch16.addConstraint(Sketcher.Constraint("Vertical", 74))
sketch16.addConstraint(Sketcher.Constraint("Horizontal", 75))
sketch16.addConstraint(Sketcher.Constraint("Vertical", 76))
sketch16.addConstraint(Sketcher.Constraint("Horizontal", 77))
sketch16.addConstraint(Sketcher.Constraint("Vertical", 78))
sketch16.addConstraint(Sketcher.Constraint("Horizontal", 79))
sketch16.addConstraint(Sketcher.Constraint("Horizontal", 1, 2, 4, 2))
sketch16.addConstraint(Sketcher.Constraint("Horizontal", 3, 2, 6, 2))
sketch16.addConstraint(Sketcher.Constraint("Horizontal", 9, 2, 12, 2))
sketch16.addConstraint(Sketcher.Constraint("Horizontal", 11, 2, 14, 2))
sketch16.addConstraint(Sketcher.Constraint("Horizontal", 17, 2, 20, 2))
sketch16.addConstraint(Sketcher.Constraint("Horizontal", 19, 2, 22, 2))
sketch16.addConstraint(Sketcher.Constraint("Horizontal", 25, 2, 28, 2))
sketch16.addConstraint(Sketcher.Constraint("Horizontal", 27, 2, 30, 2))
sketch16.addConstraint(Sketcher.Constraint("Horizontal", 33, 2, 36, 2))
sketch16.addConstraint(Sketcher.Constraint("Horizontal", 35, 2, 38, 2))
sketch16.addConstraint(Sketcher.Constraint("Horizontal", 5, 2, 40, 2))
sketch16.addConstraint(Sketcher.Constraint("Horizontal", 7, 2, 42, 2))
sketch16.addConstraint(Sketcher.Constraint("Horizontal", 41, 2, 44, 2))
sketch16.addConstraint(Sketcher.Constraint("Horizontal", 43, 2, 46, 2))
sketch16.addConstraint(Sketcher.Constraint("Horizontal", 13, 2, 48, 2))
sketch16.addConstraint(Sketcher.Constraint("Horizontal", 15, 2, 50, 2))
sketch16.addConstraint(Sketcher.Constraint("Horizontal", 49, 2, 52, 2))
sketch16.addConstraint(Sketcher.Constraint("Horizontal", 51, 2, 54, 2))
sketch16.addConstraint(Sketcher.Constraint("Horizontal", 21, 2, 56, 2))
sketch16.addConstraint(Sketcher.Constraint("Horizontal", 23, 2, 58, 2))
sketch16.addConstraint(Sketcher.Constraint("Horizontal", 57, 2, 60, 2))
sketch16.addConstraint(Sketcher.Constraint("Horizontal", 59, 2, 62, 2))
sketch16.addConstraint(Sketcher.Constraint("Horizontal", 29, 2, 64, 2))
sketch16.addConstraint(Sketcher.Constraint("Horizontal", 31, 2, 66, 2))
sketch16.addConstraint(Sketcher.Constraint("Horizontal", 65, 2, 68, 2))
sketch16.addConstraint(Sketcher.Constraint("Horizontal", 67, 2, 70, 2))
sketch16.addConstraint(Sketcher.Constraint("Horizontal", 37, 2, 72, 2))
sketch16.addConstraint(Sketcher.Constraint("Horizontal", 39, 2, 74, 2))
sketch16.addConstraint(Sketcher.Constraint("Horizontal", 73, 2, 76, 2))
sketch16.addConstraint(Sketcher.Constraint("Horizontal", 75, 2, 78, 2))
sketch16.addConstraint(Sketcher.Constraint("Vertical", 3, 2, 8, 2))
sketch16.addConstraint(Sketcher.Constraint("Vertical", 2, 2, 9, 2))
sketch16.addConstraint(Sketcher.Constraint("Vertical", 7, 2, 12, 2))
sketch16.addConstraint(Sketcher.Constraint("Vertical", 6, 2, 13, 2))
sketch16.addConstraint(Sketcher.Constraint("Vertical", 15, 2, 16, 2))
sketch16.addConstraint(Sketcher.Constraint("Vertical", 14, 2, 17, 2))
sketch16.addConstraint(Sketcher.Constraint("Vertical", 11, 2, 20, 2))
sketch16.addConstraint(Sketcher.Constraint("Vertical", 10, 2, 21, 2))
sketch16.addConstraint(Sketcher.Constraint("Vertical", 23, 2, 24, 2))
sketch16.addConstraint(Sketcher.Constraint("Vertical", 22, 2, 25, 2))
sketch16.addConstraint(Sketcher.Constraint("Vertical", 19, 2, 28, 2))
sketch16.addConstraint(Sketcher.Constraint("Vertical", 18, 2, 29, 2))
sketch16.addConstraint(Sketcher.Constraint("Vertical", 31, 2, 32, 2))
sketch16.addConstraint(Sketcher.Constraint("Vertical", 30, 2, 33, 2))
sketch16.addConstraint(Sketcher.Constraint("Vertical", 27, 2, 36, 2))
sketch16.addConstraint(Sketcher.Constraint("Vertical", 26, 2, 37, 2))
sketch16.addConstraint(Sketcher.Constraint("Vertical", 47, 2, 48, 2))
sketch16.addConstraint(Sketcher.Constraint("Vertical", 46, 2, 49, 2))
sketch16.addConstraint(Sketcher.Constraint("Vertical", 43, 2, 52, 2))
sketch16.addConstraint(Sketcher.Constraint("Vertical", 42, 2, 53, 2))
sketch16.addConstraint(Sketcher.Constraint("Vertical", 55, 2, 56, 2))
sketch16.addConstraint(Sketcher.Constraint("Vertical", 54, 2, 57, 2))
sketch16.addConstraint(Sketcher.Constraint("Vertical", 51, 2, 60, 2))
sketch16.addConstraint(Sketcher.Constraint("Vertical", 50, 2, 61, 2))
sketch16.addConstraint(Sketcher.Constraint("Vertical", 59, 2, 64, 2))
sketch16.addConstraint(Sketcher.Constraint("Vertical", 58, 2, 65, 2))
sketch16.addConstraint(Sketcher.Constraint("Vertical", 63, 2, 68, 2))
sketch16.addConstraint(Sketcher.Constraint("Vertical", 62, 2, 69, 2))
sketch16.addConstraint(Sketcher.Constraint("Vertical", 67, 2, 72, 2))
sketch16.addConstraint(Sketcher.Constraint("Vertical", 66, 2, 73, 2))
sketch16.addConstraint(Sketcher.Constraint("Vertical", 71, 2, 76, 2))
sketch16.addConstraint(Sketcher.Constraint("Vertical", 70, 2, 77, 2))
sketch16.addConstraint(Sketcher.Constraint("Equal", 3, 5))
sketch16.addConstraint(Sketcher.Constraint("Equal", 39, 41))
sketch16.addConstraint(Sketcher.Constraint("Equal", 43, 45))
sketch16.addConstraint(Sketcher.Constraint("Equal", 6, 8))
sketch16.addConstraint(Sketcher.Constraint("Equal", 14, 16))
sketch16.addConstraint(Sketcher.Constraint("Equal", 22, 24))
sketch16.addConstraint(Sketcher.Constraint("Equal", 30, 32))
sketch16.addConstraint(Sketcher.Constraint("DistanceX", 1, 1, 1, 2, Q("5 mm")))
sketch16.addConstraint(Sketcher.Constraint("DistanceY", 0, 2, 0, 1, Q("0.4 mm")))
sketch16.addConstraint(Sketcher.Constraint("DistanceX", -1, 1, 40, 2, Q("27.681998 mm")))
sketch16.addConstraint(Sketcher.Constraint("DistanceY", -1, 1, 16, 2, Q("33.414091 mm")))
sketch16.addConstraint(Sketcher.Constraint("DistanceY", -1, 1, 32, 2, Q("29.739091 mm")))
sketch16.addConstraint(Sketcher.Constraint("DistanceX", -1, 1, 0, 2, Q("47.681994 mm")))
sketch16.addConstraint(Sketcher.Constraint("DistanceY", -1, 1, 0, 2, Q("36.716055 mm")))
sketch16.addConstraint(Sketcher.Constraint("DistanceX", -1, 1, 4, 2, Q("41.050416 mm")))
sketch16.addConstraint(Sketcher.Constraint("DistanceY", -1, 1, 8, 2, Q("35.149496 mm")))
sketch16.addConstraint(Sketcher.Constraint("DistanceY", -1, 1, 24, 2, Q("31.311426 mm")))
sketch16.addConstraint(Sketcher.Constraint("DistanceX", -1, 1, 44, 2, Q("34.260943 mm")))
pad3 = body.newObject("PartDesign::Pad", "Pad002")
pad3.Profile = sketch16
pad3.Length = 2.1
pad3.Reversed = True

doc.recompute()
